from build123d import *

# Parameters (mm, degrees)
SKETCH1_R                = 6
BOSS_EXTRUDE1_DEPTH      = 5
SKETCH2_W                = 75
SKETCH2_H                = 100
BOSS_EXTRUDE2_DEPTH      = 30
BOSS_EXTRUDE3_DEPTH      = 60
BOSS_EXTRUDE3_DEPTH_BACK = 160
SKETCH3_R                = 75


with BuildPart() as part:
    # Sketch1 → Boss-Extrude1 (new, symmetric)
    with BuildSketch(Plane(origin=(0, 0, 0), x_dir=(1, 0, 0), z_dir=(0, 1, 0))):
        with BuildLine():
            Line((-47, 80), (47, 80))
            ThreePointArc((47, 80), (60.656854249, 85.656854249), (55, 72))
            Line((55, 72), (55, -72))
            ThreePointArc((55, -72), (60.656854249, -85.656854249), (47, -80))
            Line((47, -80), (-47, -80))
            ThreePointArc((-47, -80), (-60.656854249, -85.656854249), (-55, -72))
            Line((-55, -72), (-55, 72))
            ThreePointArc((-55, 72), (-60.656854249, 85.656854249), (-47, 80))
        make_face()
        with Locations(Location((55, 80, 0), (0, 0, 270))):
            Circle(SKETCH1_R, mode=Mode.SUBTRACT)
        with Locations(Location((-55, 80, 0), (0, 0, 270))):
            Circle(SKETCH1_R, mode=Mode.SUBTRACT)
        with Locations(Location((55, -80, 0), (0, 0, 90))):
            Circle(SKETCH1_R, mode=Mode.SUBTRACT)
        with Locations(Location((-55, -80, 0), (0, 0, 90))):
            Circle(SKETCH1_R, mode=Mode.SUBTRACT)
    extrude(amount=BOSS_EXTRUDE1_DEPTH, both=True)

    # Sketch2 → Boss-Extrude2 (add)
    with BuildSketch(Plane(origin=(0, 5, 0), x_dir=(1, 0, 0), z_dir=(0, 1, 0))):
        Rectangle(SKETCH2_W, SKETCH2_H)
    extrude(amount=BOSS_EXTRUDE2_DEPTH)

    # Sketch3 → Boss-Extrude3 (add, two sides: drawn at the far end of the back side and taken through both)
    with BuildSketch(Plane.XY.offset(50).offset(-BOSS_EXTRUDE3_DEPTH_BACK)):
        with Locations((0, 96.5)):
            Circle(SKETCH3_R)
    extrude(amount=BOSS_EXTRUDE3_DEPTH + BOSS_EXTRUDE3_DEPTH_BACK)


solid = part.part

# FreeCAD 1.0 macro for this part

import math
import FreeCAD as App
import Part
import Sketcher
from FreeCAD import Vector
Q = App.Units.Quantity


def add_polygon(sketch, points):
    """Adds a closed chain of lines whose ends are joined by coincident constraints."""
    first, n = sketch.GeometryCount, len(points)
    for a, b in zip(points, points[1:] + points[:1]):
        sketch.addGeometry(Part.LineSegment(App.Vector(*a, 0), App.Vector(*b, 0)), False)
    for i in range(n):
        sketch.addConstraint(Sketcher.Constraint("Coincident", first + i, 2, first + (i + 1) % n, 1))

doc = App.newDocument("Part")
body = doc.addObject("PartDesign::Body", "Body")

# Sketch on XZ plane
sketch1 = body.newObject("Sketcher::SketchObject", "Sketch")
sketch1.AttachmentSupport = (doc.getObject("XZ_Plane"), [""])
sketch1.MapMode = "FlatFace"
sketch1.addGeometry([
    Part.LineSegment(Vector(47, -80, 0), Vector(-47, -80, 0)),  # 0
    Part.ArcOfCircle(Part.Circle(Vector(-55, -80, 0), Vector(0, 0, 1), 8), math.radians(90), math.radians(360)),  # 1
    Part.LineSegment(Vector(-55, -72, 0), Vector(-55, 72, 0)),  # 2
    Part.ArcOfCircle(Part.Circle(Vector(-55, 80, 0), Vector(0, 0, 1), 8), math.radians(0), math.radians(270)),  # 3
    Part.LineSegment(Vector(-47, 80, 0), Vector(47, 80, 0)),  # 4
    Part.ArcOfCircle(Part.Circle(Vector(55, 80, 0), Vector(0, 0, 1), 8), math.radians(-90), math.radians(180)),  # 5
    Part.LineSegment(Vector(55, 72, 0), Vector(55, -72, 0)),  # 6
    Part.ArcOfCircle(Part.Circle(Vector(55, -80, 0), Vector(0, 0, 1), 8), math.radians(180), math.radians(450)),  # 7
    Part.Circle(Vector(55, 80, 0), Vector(0, 0, 1), 6),  # 8
    Part.Circle(Vector(-55, 80, 0), Vector(0, 0, 1), 6),  # 9
    Part.Circle(Vector(55, -80, 0), Vector(0, 0, 1), 6),  # 10
    Part.Circle(Vector(-55, -80, 0), Vector(0, 0, 1), 6),  # 11
], False)
sketch1.addConstraint([
    Sketcher.Constraint("Coincident", 0, 2, 1, 2),
    Sketcher.Constraint("Coincident", 1, 1, 2, 1),
    Sketcher.Constraint("Coincident", 2, 2, 3, 2),
    Sketcher.Constraint("Coincident", 3, 1, 4, 1),
    Sketcher.Constraint("Coincident", 4, 2, 5, 2),
    Sketcher.Constraint("Coincident", 5, 1, 6, 1),
    Sketcher.Constraint("Coincident", 6, 2, 7, 2),
    Sketcher.Constraint("Coincident", 7, 1, 0, 1),
    Sketcher.Constraint("Horizontal", 0),
    Sketcher.Constraint("Vertical", 2),
    Sketcher.Constraint("Horizontal", 4),
    Sketcher.Constraint("Vertical", 6),
    Sketcher.Constraint("Coincident", 8, 3, 5, 3),
    Sketcher.Constraint("Coincident", 9, 3, 3, 3),
    Sketcher.Constraint("Coincident", 10, 3, 7, 3),
    Sketcher.Constraint("Coincident", 11, 3, 1, 3),
    Sketcher.Constraint("Equal", 1, 3),
    Sketcher.Constraint("Equal", 3, 5),
    Sketcher.Constraint("Equal", 5, 7),
    Sketcher.Constraint("Equal", 8, 9),
    Sketcher.Constraint("Equal", 9, 10),
    Sketcher.Constraint("Equal", 10, 11),
    Sketcher.Constraint("Symmetric", 1, 3, 5, 3, -1, 1),
    Sketcher.Constraint("Symmetric", 3, 3, 7, 3, -1, 1),
    Sketcher.Constraint("Symmetric", 3, 3, 5, 3, -2),
    Sketcher.Constraint("Horizontal", 11, 3, 0, 2),
    Sketcher.Constraint("Horizontal", 9, 3, 3, 1),
    Sketcher.Constraint("Vertical", 11, 3, 1, 1),
    Sketcher.Constraint("Vertical", 10, 3, 5, 1),
    Sketcher.Constraint("Diameter", 8, Q("12 mm")),
    Sketcher.Constraint("Radius", 1, Q("8 mm")),
    Sketcher.Constraint("DistanceX", 0, 2, 0, 1, Q("94 mm")),
    Sketcher.Constraint("DistanceY", 2, 1, 2, 2, Q("144 mm")),
])
pad1 = body.newObject("PartDesign::Pad", "Pad")
pad1.Profile = sketch1
pad1.Length = 10
pad1.Midplane = True

# Sketch on XZ plane
sketch2 = body.newObject("Sketcher::SketchObject", "Sketch001")
sketch2.AttachmentSupport = (doc.getObject("XZ_Plane"), [""])
sketch2.MapMode = "FlatFace"
sketch2.AttachmentOffset = App.Placement(Vector(0, 0, -5), App.Rotation())
add_polygon(sketch2, [(-38, -50), (-38, 50), (38, 50), (38, -50)])  # lines 0-3
sketch2.addConstraint([
    Sketcher.Constraint("Vertical", 0),
    Sketcher.Constraint("Horizontal", 1),
    Sketcher.Constraint("Vertical", 2),
    Sketcher.Constraint("Horizontal", 3),
    Sketcher.Constraint("Symmetric", 0, 2, 2, 2, -1, 1),
    Sketcher.Constraint("DistanceX", 1, 1, 1, 2, Q("75 mm")),
    Sketcher.Constraint("DistanceY", 0, 1, 0, 2, Q("100 mm")),
])
pad2 = body.newObject("PartDesign::Pad", "Pad001")
pad2.Profile = sketch2
pad2.Length = 30
pad2.Reversed = True

# Sketch on XY plane
sketch3 = body.newObject("Sketcher::SketchObject", "Sketch002")
sketch3.AttachmentSupport = (doc.getObject("XY_Plane"), [""])
sketch3.MapMode = "FlatFace"
sketch3.AttachmentOffset = App.Placement(Vector(0, 0, 50), App.Rotation())
sketch3.addGeometry(Part.Circle(Vector(0, 96, 0), Vector(0, 0, 1), 75), False)
sketch3.addConstraint([
    Sketcher.Constraint("PointOnObject", 0, 3, -2),
    Sketcher.Constraint("Diameter", 0, Q("150 mm")),
    Sketcher.Constraint("DistanceY", -1, 1, 0, 3, Q("96.5 mm")),
])
pad3 = body.newObject("PartDesign::Pad", "Pad002")
pad3.Profile = sketch3
pad3.Type = "TwoLengths"
pad3.Length = 60
pad3.Length2 = 160

doc.recompute()
